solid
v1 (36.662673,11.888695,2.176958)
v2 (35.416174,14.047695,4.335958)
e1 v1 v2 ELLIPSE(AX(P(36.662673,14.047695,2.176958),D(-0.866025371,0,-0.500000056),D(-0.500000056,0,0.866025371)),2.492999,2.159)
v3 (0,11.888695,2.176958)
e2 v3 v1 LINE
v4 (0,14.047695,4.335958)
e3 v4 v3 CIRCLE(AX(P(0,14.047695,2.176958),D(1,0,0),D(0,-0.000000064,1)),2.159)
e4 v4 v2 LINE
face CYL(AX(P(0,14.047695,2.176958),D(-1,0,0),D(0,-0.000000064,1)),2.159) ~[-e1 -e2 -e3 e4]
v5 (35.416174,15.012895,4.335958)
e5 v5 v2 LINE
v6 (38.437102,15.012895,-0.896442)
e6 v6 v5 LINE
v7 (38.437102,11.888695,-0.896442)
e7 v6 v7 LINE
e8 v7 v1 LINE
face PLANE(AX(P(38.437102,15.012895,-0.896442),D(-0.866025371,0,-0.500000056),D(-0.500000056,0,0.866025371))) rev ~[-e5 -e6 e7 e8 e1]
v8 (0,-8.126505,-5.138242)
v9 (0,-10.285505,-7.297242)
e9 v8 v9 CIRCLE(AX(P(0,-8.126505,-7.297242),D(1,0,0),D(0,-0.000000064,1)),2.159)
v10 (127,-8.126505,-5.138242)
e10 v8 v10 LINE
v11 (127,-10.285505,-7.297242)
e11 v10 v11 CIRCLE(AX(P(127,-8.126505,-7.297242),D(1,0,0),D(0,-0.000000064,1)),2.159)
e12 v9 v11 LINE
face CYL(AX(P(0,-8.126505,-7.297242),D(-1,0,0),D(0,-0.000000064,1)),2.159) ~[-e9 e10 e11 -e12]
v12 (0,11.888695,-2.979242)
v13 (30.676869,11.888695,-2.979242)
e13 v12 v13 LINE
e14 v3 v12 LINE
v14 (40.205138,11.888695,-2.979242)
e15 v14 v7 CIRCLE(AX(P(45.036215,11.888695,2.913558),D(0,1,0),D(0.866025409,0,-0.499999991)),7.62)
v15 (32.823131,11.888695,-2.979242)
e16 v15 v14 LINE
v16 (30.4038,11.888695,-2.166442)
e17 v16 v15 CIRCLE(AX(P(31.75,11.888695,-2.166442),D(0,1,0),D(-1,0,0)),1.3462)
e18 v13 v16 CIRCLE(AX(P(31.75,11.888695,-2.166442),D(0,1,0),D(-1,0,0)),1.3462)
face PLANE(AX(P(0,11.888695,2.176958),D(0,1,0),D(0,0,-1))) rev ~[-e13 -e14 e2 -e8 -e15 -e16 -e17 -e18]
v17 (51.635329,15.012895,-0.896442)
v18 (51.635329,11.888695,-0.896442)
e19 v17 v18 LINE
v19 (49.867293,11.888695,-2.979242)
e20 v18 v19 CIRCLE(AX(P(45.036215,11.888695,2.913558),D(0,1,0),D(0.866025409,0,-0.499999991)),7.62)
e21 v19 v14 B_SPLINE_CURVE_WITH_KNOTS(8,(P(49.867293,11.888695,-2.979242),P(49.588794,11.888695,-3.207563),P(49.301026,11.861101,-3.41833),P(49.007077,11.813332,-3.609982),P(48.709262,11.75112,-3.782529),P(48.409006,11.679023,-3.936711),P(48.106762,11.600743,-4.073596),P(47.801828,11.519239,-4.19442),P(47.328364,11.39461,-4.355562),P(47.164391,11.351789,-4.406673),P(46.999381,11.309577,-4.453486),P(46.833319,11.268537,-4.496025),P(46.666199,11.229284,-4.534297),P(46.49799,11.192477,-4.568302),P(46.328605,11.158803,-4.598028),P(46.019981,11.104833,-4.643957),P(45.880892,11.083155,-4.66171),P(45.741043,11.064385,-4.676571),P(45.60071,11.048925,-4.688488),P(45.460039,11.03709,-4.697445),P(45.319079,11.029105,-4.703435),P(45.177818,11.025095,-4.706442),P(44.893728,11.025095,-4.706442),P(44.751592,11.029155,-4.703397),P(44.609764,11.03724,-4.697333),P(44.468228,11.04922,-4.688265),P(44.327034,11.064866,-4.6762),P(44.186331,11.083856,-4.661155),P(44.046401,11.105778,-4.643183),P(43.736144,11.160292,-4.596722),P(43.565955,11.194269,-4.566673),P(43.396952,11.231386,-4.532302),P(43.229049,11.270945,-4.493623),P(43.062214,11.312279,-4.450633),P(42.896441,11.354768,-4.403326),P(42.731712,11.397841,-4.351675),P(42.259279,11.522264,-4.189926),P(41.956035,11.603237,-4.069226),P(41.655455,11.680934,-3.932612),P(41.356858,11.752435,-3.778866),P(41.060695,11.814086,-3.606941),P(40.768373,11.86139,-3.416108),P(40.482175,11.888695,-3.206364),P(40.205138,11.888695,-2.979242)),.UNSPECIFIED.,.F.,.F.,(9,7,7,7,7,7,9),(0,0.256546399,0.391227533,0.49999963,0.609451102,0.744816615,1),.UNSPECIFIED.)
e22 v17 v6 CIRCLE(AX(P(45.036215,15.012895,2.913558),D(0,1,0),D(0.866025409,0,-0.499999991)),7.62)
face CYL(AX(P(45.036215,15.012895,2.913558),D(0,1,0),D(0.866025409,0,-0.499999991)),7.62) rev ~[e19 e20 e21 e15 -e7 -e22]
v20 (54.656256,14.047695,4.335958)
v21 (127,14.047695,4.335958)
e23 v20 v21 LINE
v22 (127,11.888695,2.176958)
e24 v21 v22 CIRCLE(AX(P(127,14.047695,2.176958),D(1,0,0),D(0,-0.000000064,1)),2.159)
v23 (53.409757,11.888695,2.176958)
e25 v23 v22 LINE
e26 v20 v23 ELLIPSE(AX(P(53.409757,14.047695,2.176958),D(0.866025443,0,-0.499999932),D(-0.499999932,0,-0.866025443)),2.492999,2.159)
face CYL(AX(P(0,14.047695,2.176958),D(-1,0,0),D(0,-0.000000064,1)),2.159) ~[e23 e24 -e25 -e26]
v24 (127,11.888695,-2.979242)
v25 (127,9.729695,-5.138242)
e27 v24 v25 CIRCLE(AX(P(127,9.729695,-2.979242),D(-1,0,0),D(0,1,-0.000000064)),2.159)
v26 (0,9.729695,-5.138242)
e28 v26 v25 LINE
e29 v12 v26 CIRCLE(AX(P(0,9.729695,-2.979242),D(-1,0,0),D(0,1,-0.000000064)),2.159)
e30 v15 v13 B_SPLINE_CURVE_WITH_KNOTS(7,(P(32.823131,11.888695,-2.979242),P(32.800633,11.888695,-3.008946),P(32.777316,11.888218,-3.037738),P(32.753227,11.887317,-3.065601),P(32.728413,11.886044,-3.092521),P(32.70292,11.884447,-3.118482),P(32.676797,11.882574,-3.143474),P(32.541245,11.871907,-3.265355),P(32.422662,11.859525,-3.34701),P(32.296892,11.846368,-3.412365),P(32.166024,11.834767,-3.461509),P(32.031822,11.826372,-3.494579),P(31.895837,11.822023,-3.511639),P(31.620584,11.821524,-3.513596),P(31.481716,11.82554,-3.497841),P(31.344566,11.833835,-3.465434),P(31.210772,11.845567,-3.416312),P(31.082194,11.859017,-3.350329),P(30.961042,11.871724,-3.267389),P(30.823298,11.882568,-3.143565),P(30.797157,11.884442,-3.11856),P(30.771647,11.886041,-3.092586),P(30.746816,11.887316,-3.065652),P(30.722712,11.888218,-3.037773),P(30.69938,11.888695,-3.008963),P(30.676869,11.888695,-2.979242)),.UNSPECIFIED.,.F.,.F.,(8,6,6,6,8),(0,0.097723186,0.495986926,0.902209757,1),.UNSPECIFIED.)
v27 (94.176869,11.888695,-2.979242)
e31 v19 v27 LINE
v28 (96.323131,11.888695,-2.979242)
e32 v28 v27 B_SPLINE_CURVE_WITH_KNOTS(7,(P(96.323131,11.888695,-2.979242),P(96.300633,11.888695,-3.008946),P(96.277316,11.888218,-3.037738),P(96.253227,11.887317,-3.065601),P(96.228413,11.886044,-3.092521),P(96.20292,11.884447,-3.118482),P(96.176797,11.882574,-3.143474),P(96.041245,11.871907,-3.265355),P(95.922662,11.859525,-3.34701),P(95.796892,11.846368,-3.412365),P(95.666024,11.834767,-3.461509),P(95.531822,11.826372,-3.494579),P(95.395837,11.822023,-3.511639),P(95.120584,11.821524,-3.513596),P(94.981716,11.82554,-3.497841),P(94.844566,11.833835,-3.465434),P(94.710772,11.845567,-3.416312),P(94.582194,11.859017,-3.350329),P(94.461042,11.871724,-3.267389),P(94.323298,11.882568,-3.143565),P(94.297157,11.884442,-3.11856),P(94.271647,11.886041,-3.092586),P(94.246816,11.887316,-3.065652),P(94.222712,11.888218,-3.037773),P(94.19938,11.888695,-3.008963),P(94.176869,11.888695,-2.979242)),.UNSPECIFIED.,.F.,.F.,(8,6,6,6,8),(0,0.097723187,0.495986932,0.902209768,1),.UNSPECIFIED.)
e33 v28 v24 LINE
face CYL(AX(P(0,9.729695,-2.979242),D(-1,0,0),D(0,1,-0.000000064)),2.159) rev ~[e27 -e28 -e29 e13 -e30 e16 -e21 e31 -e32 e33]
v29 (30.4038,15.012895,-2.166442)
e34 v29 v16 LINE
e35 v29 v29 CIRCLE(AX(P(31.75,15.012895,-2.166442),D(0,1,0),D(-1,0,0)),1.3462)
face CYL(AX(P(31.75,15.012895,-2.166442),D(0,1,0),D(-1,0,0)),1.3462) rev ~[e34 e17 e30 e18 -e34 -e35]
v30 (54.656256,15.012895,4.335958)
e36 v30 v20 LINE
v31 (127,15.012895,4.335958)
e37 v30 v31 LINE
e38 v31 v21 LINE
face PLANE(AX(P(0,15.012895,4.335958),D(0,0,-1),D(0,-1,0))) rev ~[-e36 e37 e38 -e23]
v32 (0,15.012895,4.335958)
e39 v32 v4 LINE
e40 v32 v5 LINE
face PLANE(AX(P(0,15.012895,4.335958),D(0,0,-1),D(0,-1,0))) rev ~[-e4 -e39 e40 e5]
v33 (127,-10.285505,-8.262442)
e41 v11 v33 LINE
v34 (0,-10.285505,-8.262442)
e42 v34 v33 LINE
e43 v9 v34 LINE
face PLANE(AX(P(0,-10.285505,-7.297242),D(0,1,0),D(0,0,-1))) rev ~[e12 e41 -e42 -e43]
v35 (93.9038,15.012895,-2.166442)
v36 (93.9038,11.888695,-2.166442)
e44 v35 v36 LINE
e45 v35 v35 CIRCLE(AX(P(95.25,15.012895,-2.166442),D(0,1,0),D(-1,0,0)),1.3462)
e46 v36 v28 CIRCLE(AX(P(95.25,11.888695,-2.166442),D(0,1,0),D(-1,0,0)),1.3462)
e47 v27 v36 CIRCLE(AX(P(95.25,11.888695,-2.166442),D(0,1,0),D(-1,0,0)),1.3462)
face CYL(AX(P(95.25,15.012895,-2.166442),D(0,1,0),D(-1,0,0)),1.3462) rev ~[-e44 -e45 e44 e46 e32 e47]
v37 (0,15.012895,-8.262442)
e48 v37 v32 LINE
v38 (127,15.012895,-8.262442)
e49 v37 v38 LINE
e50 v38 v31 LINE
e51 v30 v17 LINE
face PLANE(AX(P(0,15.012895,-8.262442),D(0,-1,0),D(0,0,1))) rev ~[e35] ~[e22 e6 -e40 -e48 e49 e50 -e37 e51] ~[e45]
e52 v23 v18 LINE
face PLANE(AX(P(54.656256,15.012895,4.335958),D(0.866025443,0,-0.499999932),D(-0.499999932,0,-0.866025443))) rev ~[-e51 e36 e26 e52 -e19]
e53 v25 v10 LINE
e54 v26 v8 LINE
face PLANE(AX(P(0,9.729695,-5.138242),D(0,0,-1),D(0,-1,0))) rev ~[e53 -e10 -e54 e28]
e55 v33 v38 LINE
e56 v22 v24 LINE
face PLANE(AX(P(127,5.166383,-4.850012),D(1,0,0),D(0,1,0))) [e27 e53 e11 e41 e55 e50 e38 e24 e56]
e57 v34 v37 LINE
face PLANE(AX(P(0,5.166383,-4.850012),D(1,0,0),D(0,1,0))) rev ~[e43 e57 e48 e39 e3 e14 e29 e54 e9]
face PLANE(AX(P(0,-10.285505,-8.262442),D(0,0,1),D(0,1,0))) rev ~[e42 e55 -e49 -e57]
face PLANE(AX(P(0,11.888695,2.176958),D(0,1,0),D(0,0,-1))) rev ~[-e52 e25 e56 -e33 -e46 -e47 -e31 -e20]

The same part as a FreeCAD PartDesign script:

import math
import FreeCAD as App
import Part
import Sketcher
Q = App.Units.Quantity

doc = App.newDocument("Part")
params = doc.addObject("Spreadsheet::Sheet", "Params")
for row, (alias, value) in enumerate([
    ("sketch1_radius", "0.085 in"),
    ("sketch1_width", "0.996 in"),
    ("sketch1_width2", "0.038 in"),
    ("sketch1_height", "0.496 in"),
    ("pad1_length", "5 in"),
    ("sketch2_diameter", "0.106 in"),
    ("sketch3_radius", "0.3 in"),
], start=1):
    params.set(f"A{row}", alias)
    params.set(f"B{row}", "=" + value)
    params.setAlias(f"B{row}", alias)

body = doc.addObject("PartDesign::Body", "Body")

# Sketch on YZ plane
sketch1 = body.newObject("Sketcher::SketchObject", "Sketch")
sketch1.AttachmentSupport = (doc.getObject("YZ_Plane"), [""])
sketch1.MapMode = "FlatFace"
sketch1.addGeometry(Part.LineSegment(App.Vector(-10.3, -7.3, 0), App.Vector(-10.3, -8.3, 0)), False)
sketch1.addGeometry(Part.LineSegment(App.Vector(-10.3, -8.3, 0), App.Vector(15, -8.3, 0)), False)
sketch1.addGeometry(Part.LineSegment(App.Vector(15, -8.3, 0), App.Vector(15, 4.3, 0)), False)
sketch1.addGeometry(Part.LineSegment(App.Vector(15, 4.3, 0), App.Vector(14, 4.3, 0)), False)
sketch1.addGeometry(Part.ArcOfCircle(Part.Circle(App.Vector(14, 2.2, 0), App.Vector(0, 0, 1), 2.2), math.radians(90), math.radians(180)), False)
sketch1.addGeometry(Part.LineSegment(App.Vector(11.9, 2.2, 0), App.Vector(11.9, -3, 0)), False)
sketch1.addGeometry(Part.ArcOfCircle(Part.Circle(App.Vector(9.7, -3, 0), App.Vector(0, 0, 1), 2.2), math.radians(-90), math.radians(0)), False)
sketch1.addGeometry(Part.LineSegment(App.Vector(9.7, -5.1, 0), App.Vector(-8.1, -5.1, 0)), False)
sketch1.addGeometry(Part.ArcOfCircle(Part.Circle(App.Vector(-8.1, -7.3, 0), App.Vector(0, 0, 1), 2.2), math.radians(90), math.radians(180)), False)
sketch1.addConstraint(Sketcher.Constraint("Coincident", 0, 2, 1, 1))
sketch1.addConstraint(Sketcher.Constraint("Coincident", 1, 2, 2, 1))
sketch1.addConstraint(Sketcher.Constraint("Coincident", 2, 2, 3, 1))
sketch1.addConstraint(Sketcher.Constraint("Tangent", 3, 2, 4, 1))
sketch1.addConstraint(Sketcher.Constraint("Tangent", 4, 2, 5, 1))
sketch1.addConstraint(Sketcher.Constraint("Tangent", 5, 2, 6, 2))
sketch1.addConstraint(Sketcher.Constraint("Tangent", 6, 1, 7, 1))
sketch1.addConstraint(Sketcher.Constraint("Tangent", 7, 2, 8, 1))
sketch1.addConstraint(Sketcher.Constraint("Tangent", 8, 2, 0, 1))
sketch1.addConstraint(Sketcher.Constraint("Vertical", 0))
sketch1.addConstraint(Sketcher.Constraint("Horizontal", 1))
sketch1.addConstraint(Sketcher.Constraint("Vertical", 2))
sketch1.addConstraint(Sketcher.Constraint("Horizontal", 3))
sketch1.addConstraint(Sketcher.Constraint("Vertical", 5))
sketch1.addConstraint(Sketcher.Constraint("Horizontal", 7))
sketch1.addConstraint(Sketcher.Constraint("Equal", 4, 6))
sketch1.addConstraint(Sketcher.Constraint("Equal", 6, 8))
sketch1.addConstraint(Sketcher.Constraint("Equal", 3, 0))
sketch1.addConstraint(Sketcher.Constraint("Radius", 4, Q("0.085 in")))
sketch1.addConstraint(Sketcher.Constraint("DistanceX", 1, 1, 1, 2, Q("0.996 in")))
sketch1.addConstraint(Sketcher.Constraint("DistanceX", 3, 2, 3, 1, Q("0.038 in")))
sketch1.addConstraint(Sketcher.Constraint("DistanceY", 2, 1, 2, 2, Q("0.496 in")))
sketch1.addConstraint(Sketcher.Constraint("DistanceY", 6, 3, -1, 1, 2.979242))
sketch1.addConstraint(Sketcher.Constraint("DistanceX", -1, 1, 4, 3, 14.047695))
sketch1.setExpression("Constraints[18]", "Params.sketch1_radius")
sketch1.setExpression("Constraints[19]", "Params.sketch1_width")
sketch1.setExpression("Constraints[20]", "Params.sketch1_width2")
sketch1.setExpression("Constraints[21]", "Params.sketch1_height")
pad1 = body.newObject("PartDesign::Pad", "Pad")
pad1.Profile = sketch1
pad1.setExpression("Length", "Params.pad1_length")

# Sketch on XZ plane
sketch2 = body.newObject("Sketcher::SketchObject", "Sketch001")
sketch2.AttachmentSupport = (doc.getObject("XZ_Plane"), [""])
sketch2.MapMode = "FlatFace"
sketch2.AttachmentOffset = App.Placement(App.Vector(0, 0, -15.012895), App.Rotation())
sketch2.addGeometry(Part.Circle(App.Vector(31.8, -2.2, 0), App.Vector(0, 0, 1), 1.3), False)
sketch2.addGeometry(Part.Circle(App.Vector(95.2, -2.2, 0), App.Vector(0, 0, 1), 1.3), False)
sketch2.addConstraint(Sketcher.Constraint("Equal", 0, 1))
sketch2.addConstraint(Sketcher.Constraint("Horizontal", 0, 3, 1, 3))
sketch2.addConstraint(Sketcher.Constraint("Diameter", 0, Q("0.106 in")))
sketch2.addConstraint(Sketcher.Constraint("DistanceX", 0, 3, 1, 3, Q("2.5 in")))
sketch2.addConstraint(Sketcher.Constraint("DistanceX", -1, 1, 0, 3, Q("1.25 in")))
sketch2.addConstraint(Sketcher.Constraint("DistanceY", 0, 3, -1, 1, 2.166442))
sketch2.setExpression("Constraints[2]", "Params.sketch2_diameter")
pocket1 = body.newObject("PartDesign::Pocket", "Pocket")
pocket1.Profile = sketch2
pocket1.Type = "ThroughAll"
pocket1.Reversed = True

# Sketch on XZ plane
sketch3 = body.newObject("Sketcher::SketchObject", "Sketch002")
sketch3.AttachmentSupport = (doc.getObject("XZ_Plane"), [""])
sketch3.MapMode = "FlatFace"
sketch3.AttachmentOffset = App.Placement(App.Vector(0, 0, -15.012895), App.Rotation())
sketch3.addGeometry(Part.LineSegment(App.Vector(55, 4, 0), App.Vector(52, -1, 0)), False)
sketch3.addGeometry(Part.ArcOfCircle(Part.Circle(App.Vector(45, 3, 0), App.Vector(0, 0, 1), 8), math.radians(-150), math.radians(-30)), False)
sketch3.addGeometry(Part.LineSegment(App.Vector(38, -1, 0), App.Vector(35, 4, 0)), False)
sketch3.addGeometry(Part.LineSegment(App.Vector(35, 4, 0), App.Vector(55, 4, 0)), False)
sketch3.addConstraint(Sketcher.Constraint("Tangent", 0, 2, 1, 2))
sketch3.addConstraint(Sketcher.Constraint("Tangent", 1, 1, 2, 1))
sketch3.addConstraint(Sketcher.Constraint("Coincident", 2, 2, 3, 1))
sketch3.addConstraint(Sketcher.Constraint("Coincident", 3, 2, 0, 1))
sketch3.addConstraint(Sketcher.Constraint("Horizontal", 3))
sketch3.addConstraint(Sketcher.Constraint("Horizontal", 0, 2, 1, 1))
sketch3.addConstraint(Sketcher.Constraint("Radius", 1, Q("0.3 in")))
sketch3.addConstraint(Sketcher.Constraint("Angle", 0, Q("-119.999995 deg")))
sketch3.addConstraint(Sketcher.Constraint("DistanceY", 1, 1, 2, 2, Q("0.206 in")))
sketch3.addConstraint(Sketcher.Constraint("DistanceX", -1, 1, 1, 1, 38.437102))
sketch3.addConstraint(Sketcher.Constraint("DistanceY", 0, 2, -1, 1, 0.896442))
sketch3.setExpression("Constraints[6]", "Params.sketch3_radius")
pocket2 = body.newObject("PartDesign::Pocket", "Pocket001")
pocket2.Profile = sketch3
pocket2.Type = "ThroughAll"
pocket2.Reversed = True

doc.recompute()
